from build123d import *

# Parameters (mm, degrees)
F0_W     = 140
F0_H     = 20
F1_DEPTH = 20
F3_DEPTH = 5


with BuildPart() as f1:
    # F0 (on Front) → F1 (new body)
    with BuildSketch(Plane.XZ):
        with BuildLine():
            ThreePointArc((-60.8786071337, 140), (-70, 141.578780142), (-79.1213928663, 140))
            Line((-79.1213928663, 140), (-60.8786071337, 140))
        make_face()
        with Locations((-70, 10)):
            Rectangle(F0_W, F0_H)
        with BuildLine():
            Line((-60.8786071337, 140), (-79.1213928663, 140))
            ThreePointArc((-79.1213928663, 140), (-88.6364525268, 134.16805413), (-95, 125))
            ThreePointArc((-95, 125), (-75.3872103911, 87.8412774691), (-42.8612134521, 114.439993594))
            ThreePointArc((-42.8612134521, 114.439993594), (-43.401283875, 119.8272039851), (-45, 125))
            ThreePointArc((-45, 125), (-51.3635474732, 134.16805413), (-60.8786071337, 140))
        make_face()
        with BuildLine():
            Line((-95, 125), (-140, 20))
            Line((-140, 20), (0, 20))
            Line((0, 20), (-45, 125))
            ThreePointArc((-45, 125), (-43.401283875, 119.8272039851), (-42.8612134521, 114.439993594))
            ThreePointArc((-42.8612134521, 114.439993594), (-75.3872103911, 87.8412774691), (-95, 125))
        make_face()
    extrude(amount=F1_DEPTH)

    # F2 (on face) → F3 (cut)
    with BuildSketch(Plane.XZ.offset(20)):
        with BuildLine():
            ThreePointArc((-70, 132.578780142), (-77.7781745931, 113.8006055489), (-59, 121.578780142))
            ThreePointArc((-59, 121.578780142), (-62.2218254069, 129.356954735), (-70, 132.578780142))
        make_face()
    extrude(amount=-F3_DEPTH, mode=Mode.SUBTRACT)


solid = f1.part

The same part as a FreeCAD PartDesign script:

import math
import FreeCAD as App
import Part
import Sketcher

doc = App.newDocument("Part")
params = doc.addObject("Spreadsheet::Sheet", "Params")
for row, (alias, value) in enumerate([
    ("sketch1_width", "140 mm"),
    ("sketch1_height", "20 mm"),
    ("pad1_length", "20 mm"),
    ("sketch2_radius", "11 mm"),
    ("pocket1_length", "5 mm"),
], start=1):
    params.set(f"A{row}", alias)
    params.set(f"B{row}", "=" + value)
    params.setAlias(f"B{row}", alias)

body = doc.addObject("PartDesign::Body", "Body")

sketch1 = body.newObject("Sketcher::SketchObject", "Sketch")
sketch1.AttachmentSupport = (doc.getObject("XZ_Plane"), [""])
sketch1.MapMode = "FlatFace"
sketch1.addGeometry(Part.ArcOfCircle(Part.Circle(App.Vector(-70, 114, 0), App.Vector(0, 0, 1), 27), math.radians(70), math.radians(110)), False)
sketch1.addGeometry(Part.ArcOfCircle(Part.Circle(App.Vector(-70, 114, 0), App.Vector(0, 0, 1), 27), math.radians(110), math.radians(157)), False)
sketch1.addGeometry(Part.LineSegment(App.Vector(-95, 125, 0), App.Vector(-140, 20, 0)), False)
sketch1.addGeometry(Part.LineSegment(App.Vector(-140, 20, 0), App.Vector(-140, 0, 0)), False)
sketch1.addGeometry(Part.LineSegment(App.Vector(-140, 0, 0), App.Vector(0, 0, 0)), False)
sketch1.addGeometry(Part.LineSegment(App.Vector(0, 0, 0), App.Vector(0, 20, 0)), False)
sketch1.addGeometry(Part.LineSegment(App.Vector(0, 20, 0), App.Vector(-45, 125, 0)), False)
sketch1.addGeometry(Part.ArcOfCircle(Part.Circle(App.Vector(-70, 114, 0), App.Vector(0, 0, 1), 27), math.radians(23), math.radians(70)), False)
sketch1.addConstraint(Sketcher.Constraint("Tangent", 0, 2, 1, 1))
sketch1.addConstraint(Sketcher.Constraint("Coincident", 1, 2, 2, 1))
sketch1.addConstraint(Sketcher.Constraint("Coincident", 2, 2, 3, 1))
sketch1.addConstraint(Sketcher.Constraint("Coincident", 3, 2, 4, 1))
sketch1.addConstraint(Sketcher.Constraint("Coincident", 4, 2, 5, 1))
sketch1.addConstraint(Sketcher.Constraint("Coincident", 5, 2, 6, 1))
sketch1.addConstraint(Sketcher.Constraint("Coincident", 6, 2, 7, 1))
sketch1.addConstraint(Sketcher.Constraint("Tangent", 7, 2, 0, 1))
sketch1.addConstraint(Sketcher.Constraint("Vertical", 3))
sketch1.addConstraint(Sketcher.Constraint("Horizontal", 4))
sketch1.addConstraint(Sketcher.Constraint("Vertical", 5))
sketch1.addConstraint(Sketcher.Constraint("Coincident", 4, 2, -1, 1))
sketch1.addConstraint(Sketcher.Constraint("Equal", 0, 1))
sketch1.addConstraint(Sketcher.Constraint("Equal", 1, 7))
sketch1.addConstraint(Sketcher.Constraint("Horizontal", 2, 2, 5, 2))
sketch1.addConstraint(Sketcher.Constraint("Horizontal", 1, 2, 6, 2))
sketch1.addConstraint(Sketcher.Constraint("Horizontal", 0, 2, 7, 2))
sketch1.addConstraint(Sketcher.Constraint("Equal", 2, 6))
sketch1.addConstraint(Sketcher.Constraint("DistanceX", 4, 1, 4, 2, 140.0))
sketch1.addConstraint(Sketcher.Constraint("DistanceY", 3, 2, 3, 1, 20.0))
sketch1.addConstraint(Sketcher.Constraint("DistanceY", -1, 1, 0, 2, 140.0))
sketch1.addConstraint(Sketcher.Constraint("DistanceX", 1, 2, -1, 1, 95.0))
sketch1.addConstraint(Sketcher.Constraint("DistanceY", -1, 1, 1, 2, 125.0))
sketch1.addConstraint(Sketcher.Constraint("Radius", 0, 27.138787))
sketch1.setExpression("Constraints[18]", "Params.sketch1_width")
sketch1.setExpression("Constraints[19]", "Params.sketch1_height")
pad1 = body.newObject("PartDesign::Pad", "Pad")
pad1.Profile = sketch1
pad1.setExpression("Length", "Params.pad1_length")

sketch2 = body.newObject("Sketcher::SketchObject", "Sketch001")
sketch2.AttachmentSupport = (doc.getObject("XZ_Plane"), [""])
sketch2.MapMode = "FlatFace"
sketch2.AttachmentOffset = App.Placement(App.Vector(0, 0, 20), App.Rotation())
sketch2.addGeometry(Part.ArcOfCircle(Part.Circle(App.Vector(-70, 122, 0), App.Vector(0, 0, 1), 11), math.radians(90), math.radians(360)), False)
sketch2.addGeometry(Part.ArcOfCircle(Part.Circle(App.Vector(-70, 122, 0), App.Vector(0, 0, 1), 11), math.radians(0), math.radians(90)), False)
sketch2.addConstraint(Sketcher.Constraint("Tangent", 0, 1, 1, 2))
sketch2.addConstraint(Sketcher.Constraint("Coincident", 1, 1, 0, 2))
sketch2.addConstraint(Sketcher.Constraint("Horizontal", 0, 3, 1, 1))
sketch2.addConstraint(Sketcher.Constraint("Vertical", 1, 3, 0, 1))
sketch2.addConstraint(Sketcher.Constraint("Radius", 0, 11.0))
sketch2.addConstraint(Sketcher.Constraint("DistanceX", 0, 3, -1, 1, 70.0))
sketch2.addConstraint(Sketcher.Constraint("DistanceY", -1, 1, 0, 3, 121.57878))
sketch2.setExpression("Constraints[4]", "Params.sketch2_radius")
pocket1 = body.newObject("PartDesign::Pocket", "Pocket")
pocket1.Profile = sketch2
pocket1.setExpression("Length", "Params.pocket1_length")

doc.recompute()
